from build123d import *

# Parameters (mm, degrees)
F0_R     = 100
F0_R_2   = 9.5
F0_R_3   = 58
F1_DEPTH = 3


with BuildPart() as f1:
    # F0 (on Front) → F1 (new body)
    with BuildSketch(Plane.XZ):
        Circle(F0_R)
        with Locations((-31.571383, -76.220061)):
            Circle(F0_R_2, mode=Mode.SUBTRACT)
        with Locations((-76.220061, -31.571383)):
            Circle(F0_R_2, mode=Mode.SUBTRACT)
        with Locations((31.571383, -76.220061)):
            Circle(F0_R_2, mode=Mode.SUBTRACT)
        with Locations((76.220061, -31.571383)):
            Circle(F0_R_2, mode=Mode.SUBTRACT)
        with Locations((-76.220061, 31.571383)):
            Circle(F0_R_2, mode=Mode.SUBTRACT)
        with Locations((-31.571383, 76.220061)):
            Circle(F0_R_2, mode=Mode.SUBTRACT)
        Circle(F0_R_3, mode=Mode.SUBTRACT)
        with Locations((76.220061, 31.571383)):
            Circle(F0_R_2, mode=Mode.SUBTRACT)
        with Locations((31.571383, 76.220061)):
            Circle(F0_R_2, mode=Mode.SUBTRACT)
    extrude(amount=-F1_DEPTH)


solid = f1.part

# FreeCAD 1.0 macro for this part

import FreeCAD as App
import Part
import Sketcher
from FreeCAD import Vector
Q = App.Units.Quantity

doc = App.newDocument("Part")
body = doc.addObject("PartDesign::Body", "Body")

# Sketch on XZ plane
sketch1 = doc.addObject("Sketcher::SketchObject", "Sketch")
body.addObject(sketch1)
sketch1.AttachmentSupport = (doc.XZ_Plane, [""])
sketch1.MapMode = "FlatFace"
sketch1.addGeometry(Part.Circle(Vector(0, 0, 0), Vector(0, 0, 1), 100), False)
sketch1.addGeometry(Part.Circle(Vector(-32, -76, 0), Vector(0, 0, 1), 10), False)
sketch1.addGeometry(Part.Circle(Vector(-76, -32, 0), Vector(0, 0, 1), 10), False)
sketch1.addGeometry(Part.Circle(Vector(32, -76, 0), Vector(0, 0, 1), 10), False)
sketch1.addGeometry(Part.Circle(Vector(0, 0, 0), Vector(0, 0, 1), 58), False)
sketch1.addGeometry(Part.Circle(Vector(76, -32, 0), Vector(0, 0, 1), 10), False)
sketch1.addGeometry(Part.Circle(Vector(-76, 32, 0), Vector(0, 0, 1), 10), False)
sketch1.addGeometry(Part.Circle(Vector(-32, 76, 0), Vector(0, 0, 1), 10), False)
sketch1.addGeometry(Part.Circle(Vector(76, 32, 0), Vector(0, 0, 1), 10), False)
sketch1.addGeometry(Part.Circle(Vector(32, 76, 0), Vector(0, 0, 1), 10), False)
sketch1.addConstraint(Sketcher.Constraint("Coincident", 0, 3, -1, 1))
sketch1.addConstraint(Sketcher.Constraint("Coincident", 4, 3, -1, 1))
sketch1.addConstraint(Sketcher.Constraint("Equal", 1, 2))
sketch1.addConstraint(Sketcher.Constraint("Equal", 2, 3))
sketch1.addConstraint(Sketcher.Constraint("Equal", 3, 5))
sketch1.addConstraint(Sketcher.Constraint("Equal", 5, 6))
sketch1.addConstraint(Sketcher.Constraint("Equal", 6, 7))
sketch1.addConstraint(Sketcher.Constraint("Equal", 7, 8))
sketch1.addConstraint(Sketcher.Constraint("Equal", 8, 9))
sketch1.addConstraint(Sketcher.Constraint("Symmetric", 5, 3, 6, 3, -1, 1))
sketch1.addConstraint(Sketcher.Constraint("Symmetric", 3, 3, 7, 3, -1, 1))
sketch1.addConstraint(Sketcher.Constraint("Symmetric", 2, 3, 8, 3, -1, 1))
sketch1.addConstraint(Sketcher.Constraint("Symmetric", 1, 3, 9, 3, -1, 1))
sketch1.addConstraint(Sketcher.Constraint("Symmetric", 1, 3, 3, 3, -2))
sketch1.addConstraint(Sketcher.Constraint("Symmetric", 2, 3, 5, 3, -2))
sketch1.addConstraint(Sketcher.Constraint("Diameter", 0, Q("200 mm")))
sketch1.addConstraint(Sketcher.Constraint("Diameter", 1, Q("19 mm")))
sketch1.addConstraint(Sketcher.Constraint("Diameter", 4, Q("116 mm")))
sketch1.addConstraint(Sketcher.Constraint("DistanceY", 1, 3, -1, 1, Q("76.220061 mm")))
sketch1.addConstraint(Sketcher.Constraint("DistanceX", 2, 3, -1, 1, Q("76.220061 mm")))
sketch1.addConstraint(Sketcher.Constraint("DistanceX", 2, 3, 1, 3, Q("44.648678 mm")))
sketch1.addConstraint(Sketcher.Constraint("DistanceY", 1, 3, 2, 3, Q("44.648678 mm")))
pad1 = doc.addObject("PartDesign::Pad", "Pad")
body.addObject(pad1)
pad1.Profile = sketch1
pad1.Length = 3
pad1.Reversed = True

doc.recompute()
